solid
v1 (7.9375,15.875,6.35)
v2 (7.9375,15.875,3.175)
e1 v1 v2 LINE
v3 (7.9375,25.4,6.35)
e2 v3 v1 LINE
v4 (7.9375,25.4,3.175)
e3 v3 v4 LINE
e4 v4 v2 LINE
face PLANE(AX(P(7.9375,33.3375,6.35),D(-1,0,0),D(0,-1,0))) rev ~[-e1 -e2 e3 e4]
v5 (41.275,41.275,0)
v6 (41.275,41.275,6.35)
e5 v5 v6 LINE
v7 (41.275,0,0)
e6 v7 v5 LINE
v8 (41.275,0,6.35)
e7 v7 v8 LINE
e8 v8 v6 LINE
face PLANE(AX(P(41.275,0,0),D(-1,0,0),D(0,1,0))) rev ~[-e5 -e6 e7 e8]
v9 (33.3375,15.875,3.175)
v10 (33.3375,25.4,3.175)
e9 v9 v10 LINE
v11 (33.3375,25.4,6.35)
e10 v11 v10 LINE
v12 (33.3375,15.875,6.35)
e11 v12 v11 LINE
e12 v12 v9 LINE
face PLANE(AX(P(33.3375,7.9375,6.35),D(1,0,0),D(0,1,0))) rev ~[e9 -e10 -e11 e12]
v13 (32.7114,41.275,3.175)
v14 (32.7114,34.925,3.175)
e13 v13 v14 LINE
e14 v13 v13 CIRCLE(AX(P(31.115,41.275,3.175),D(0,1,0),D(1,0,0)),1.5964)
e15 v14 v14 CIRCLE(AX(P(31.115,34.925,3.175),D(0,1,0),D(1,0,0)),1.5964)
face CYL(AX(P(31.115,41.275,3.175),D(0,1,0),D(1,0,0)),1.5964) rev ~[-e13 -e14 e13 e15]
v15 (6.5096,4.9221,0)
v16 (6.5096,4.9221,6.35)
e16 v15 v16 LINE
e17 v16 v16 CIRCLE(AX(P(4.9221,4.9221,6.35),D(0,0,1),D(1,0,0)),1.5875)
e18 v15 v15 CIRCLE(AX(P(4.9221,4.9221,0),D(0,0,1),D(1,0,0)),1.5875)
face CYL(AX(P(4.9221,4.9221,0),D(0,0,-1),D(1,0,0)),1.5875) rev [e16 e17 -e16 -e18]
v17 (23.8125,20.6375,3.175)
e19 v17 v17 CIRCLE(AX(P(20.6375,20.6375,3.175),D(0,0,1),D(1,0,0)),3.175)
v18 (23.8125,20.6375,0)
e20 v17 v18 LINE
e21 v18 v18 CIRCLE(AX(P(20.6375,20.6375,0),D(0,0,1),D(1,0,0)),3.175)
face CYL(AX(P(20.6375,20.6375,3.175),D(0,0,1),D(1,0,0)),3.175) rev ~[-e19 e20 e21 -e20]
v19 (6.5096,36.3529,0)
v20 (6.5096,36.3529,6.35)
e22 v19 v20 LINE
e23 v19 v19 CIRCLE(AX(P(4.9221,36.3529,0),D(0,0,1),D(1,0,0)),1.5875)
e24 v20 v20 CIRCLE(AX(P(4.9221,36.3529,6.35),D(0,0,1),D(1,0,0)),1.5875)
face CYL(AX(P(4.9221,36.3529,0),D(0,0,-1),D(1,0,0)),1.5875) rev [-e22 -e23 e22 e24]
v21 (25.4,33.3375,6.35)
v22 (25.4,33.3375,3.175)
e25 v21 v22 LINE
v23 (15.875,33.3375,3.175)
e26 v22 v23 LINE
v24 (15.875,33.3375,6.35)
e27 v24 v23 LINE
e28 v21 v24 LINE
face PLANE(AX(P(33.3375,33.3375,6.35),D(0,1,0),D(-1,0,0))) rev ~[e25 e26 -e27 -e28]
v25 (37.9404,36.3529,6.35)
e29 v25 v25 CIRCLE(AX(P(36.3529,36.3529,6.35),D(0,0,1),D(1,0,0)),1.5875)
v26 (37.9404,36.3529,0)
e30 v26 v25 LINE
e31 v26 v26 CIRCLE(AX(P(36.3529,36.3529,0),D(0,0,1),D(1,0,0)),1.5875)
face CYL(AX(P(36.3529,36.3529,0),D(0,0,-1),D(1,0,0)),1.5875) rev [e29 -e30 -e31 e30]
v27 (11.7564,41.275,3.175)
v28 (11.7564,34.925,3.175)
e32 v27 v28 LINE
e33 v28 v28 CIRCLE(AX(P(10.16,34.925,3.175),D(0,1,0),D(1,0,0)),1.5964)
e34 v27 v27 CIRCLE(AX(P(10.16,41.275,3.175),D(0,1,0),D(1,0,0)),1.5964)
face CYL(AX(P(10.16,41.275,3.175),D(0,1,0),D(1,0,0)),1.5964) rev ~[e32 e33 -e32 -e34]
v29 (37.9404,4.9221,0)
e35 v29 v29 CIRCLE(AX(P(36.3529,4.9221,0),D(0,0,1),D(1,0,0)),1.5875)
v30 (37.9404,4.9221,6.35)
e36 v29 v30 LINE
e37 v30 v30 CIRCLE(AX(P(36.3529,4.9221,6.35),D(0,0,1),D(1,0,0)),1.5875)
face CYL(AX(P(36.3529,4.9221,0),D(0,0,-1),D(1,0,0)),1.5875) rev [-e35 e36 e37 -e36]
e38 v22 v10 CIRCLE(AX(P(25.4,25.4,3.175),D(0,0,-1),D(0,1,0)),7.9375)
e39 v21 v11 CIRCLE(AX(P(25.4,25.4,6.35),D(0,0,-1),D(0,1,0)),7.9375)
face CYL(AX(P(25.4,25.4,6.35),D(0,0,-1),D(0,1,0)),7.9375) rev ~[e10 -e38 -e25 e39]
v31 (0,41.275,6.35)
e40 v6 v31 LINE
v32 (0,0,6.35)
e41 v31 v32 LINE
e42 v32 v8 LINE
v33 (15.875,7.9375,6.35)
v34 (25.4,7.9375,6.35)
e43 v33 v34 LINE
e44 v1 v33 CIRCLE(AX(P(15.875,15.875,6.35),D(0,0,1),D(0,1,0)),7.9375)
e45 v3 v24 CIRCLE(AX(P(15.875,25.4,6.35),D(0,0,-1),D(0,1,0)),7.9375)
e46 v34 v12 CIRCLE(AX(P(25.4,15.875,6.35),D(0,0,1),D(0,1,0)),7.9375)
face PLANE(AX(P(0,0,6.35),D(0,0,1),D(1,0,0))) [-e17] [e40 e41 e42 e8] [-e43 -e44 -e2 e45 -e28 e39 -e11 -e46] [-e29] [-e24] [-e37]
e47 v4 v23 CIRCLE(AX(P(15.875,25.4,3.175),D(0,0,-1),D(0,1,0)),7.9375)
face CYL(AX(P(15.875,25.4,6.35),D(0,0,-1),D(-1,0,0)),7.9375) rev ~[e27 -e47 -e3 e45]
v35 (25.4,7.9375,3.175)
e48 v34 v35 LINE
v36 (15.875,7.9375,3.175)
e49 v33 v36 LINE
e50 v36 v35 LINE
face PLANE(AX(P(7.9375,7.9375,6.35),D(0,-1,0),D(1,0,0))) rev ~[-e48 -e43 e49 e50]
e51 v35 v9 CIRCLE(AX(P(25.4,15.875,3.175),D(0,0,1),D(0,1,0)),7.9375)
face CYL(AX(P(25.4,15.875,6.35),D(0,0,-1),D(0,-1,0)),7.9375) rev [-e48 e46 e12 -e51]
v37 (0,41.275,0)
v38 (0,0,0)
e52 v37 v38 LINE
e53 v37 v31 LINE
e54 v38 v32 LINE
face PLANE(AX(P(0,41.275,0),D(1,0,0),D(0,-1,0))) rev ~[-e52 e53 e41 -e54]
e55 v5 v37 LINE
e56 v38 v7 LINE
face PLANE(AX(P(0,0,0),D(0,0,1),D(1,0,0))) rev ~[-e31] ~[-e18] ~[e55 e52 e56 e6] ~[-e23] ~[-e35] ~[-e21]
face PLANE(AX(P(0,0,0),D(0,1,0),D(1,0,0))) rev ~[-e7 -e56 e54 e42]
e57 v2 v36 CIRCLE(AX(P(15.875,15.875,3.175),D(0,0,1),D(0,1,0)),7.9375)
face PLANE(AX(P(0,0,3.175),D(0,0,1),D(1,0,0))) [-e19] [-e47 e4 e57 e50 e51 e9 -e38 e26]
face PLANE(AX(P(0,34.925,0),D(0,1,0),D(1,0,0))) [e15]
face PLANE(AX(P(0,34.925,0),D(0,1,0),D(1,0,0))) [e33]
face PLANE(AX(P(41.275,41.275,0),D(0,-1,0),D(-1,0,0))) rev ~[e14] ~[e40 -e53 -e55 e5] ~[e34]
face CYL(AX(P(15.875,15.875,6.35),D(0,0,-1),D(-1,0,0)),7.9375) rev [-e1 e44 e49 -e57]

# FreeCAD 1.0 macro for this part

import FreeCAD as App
import Part
import Sketcher

V = App.Vector
Q = App.Units.Quantity


def edges_at(feature, points):
    """Names of the edges that pass closest to the given points."""
    edges = feature.Shape.Edges
    near = lambda p: min(range(len(edges)), key=lambda i: edges[i].distToShape(Part.Vertex(*p))[0])
    return sorted({f"Edge{near(p) + 1}" for p in points})

doc = App.newDocument("Part")
body = doc.addObject("PartDesign::Body", "Body")

sketch1 = body.newObject("Sketcher::SketchObject", "Sketch")
sketch1.AttachmentSupport = (doc.getObject("XY_Plane"), [""])
sketch1.MapMode = "FlatFace"
sketch1.addGeometry(Part.LineSegment(V(0, 41.3, 0), V(0, 0, 0)), False)
sketch1.addGeometry(Part.LineSegment(V(0, 0, 0), V(41.3, 0, 0)), False)
sketch1.addGeometry(Part.LineSegment(V(41.3, 0, 0), V(41.3, 41.3, 0)), False)
sketch1.addGeometry(Part.LineSegment(V(41.3, 41.3, 0), V(0, 41.3, 0)), False)
sketch1.addGeometry(Part.Circle(V(4.9, 4.9, 0), V(0, 0, 1), 1.6), False)
sketch1.addGeometry(Part.Circle(V(36.4, 4.9, 0), V(0, 0, 1), 1.6), False)
sketch1.addGeometry(Part.Circle(V(4.9, 36.4, 0), V(0, 0, 1), 1.6), False)
sketch1.addGeometry(Part.Circle(V(36.4, 36.4, 0), V(0, 0, 1), 1.6), False)
sketch1.addConstraint(Sketcher.Constraint("Coincident", 0, 2, 1, 1))
sketch1.addConstraint(Sketcher.Constraint("Coincident", 1, 2, 2, 1))
sketch1.addConstraint(Sketcher.Constraint("Coincident", 2, 2, 3, 1))
sketch1.addConstraint(Sketcher.Constraint("Coincident", 3, 2, 0, 1))
sketch1.addConstraint(Sketcher.Constraint("Vertical", 0))
sketch1.addConstraint(Sketcher.Constraint("Horizontal", 1))
sketch1.addConstraint(Sketcher.Constraint("Vertical", 2))
sketch1.addConstraint(Sketcher.Constraint("Horizontal", 3))
sketch1.addConstraint(Sketcher.Constraint("Coincident", 0, 2, -1, 1))
sketch1.addConstraint(Sketcher.Constraint("Equal", 4, 5))
sketch1.addConstraint(Sketcher.Constraint("Equal", 5, 6))
sketch1.addConstraint(Sketcher.Constraint("Equal", 6, 7))
sketch1.addConstraint(Sketcher.Constraint("Horizontal", 4, 3, 5, 3))
sketch1.addConstraint(Sketcher.Constraint("Horizontal", 6, 3, 7, 3))
sketch1.addConstraint(Sketcher.Constraint("Vertical", 4, 3, 6, 3))
sketch1.addConstraint(Sketcher.Constraint("Vertical", 5, 3, 7, 3))
sketch1.addConstraint(Sketcher.Constraint("Equal", 3, 0))
sketch1.addConstraint(Sketcher.Constraint("Diameter", 4, Q("0.125 in")))
sketch1.addConstraint(Sketcher.Constraint("DistanceX", 1, 1, 1, 2, Q("1.625 in")))
sketch1.addConstraint(Sketcher.Constraint("DistanceX", -1, 1, 4, 3, 4.922))
sketch1.addConstraint(Sketcher.Constraint("DistanceY", -1, 1, 4, 3, 4.922))
sketch1.addConstraint(Sketcher.Constraint("DistanceX", -1, 1, 5, 3, 36.353))
sketch1.addConstraint(Sketcher.Constraint("DistanceY", -1, 1, 6, 3, 36.353))
pad1 = body.newObject("PartDesign::Pad", "Pad")
pad1.Profile = sketch1
pad1.Length = Q("0.25 in")

sketch2 = body.newObject("Sketcher::SketchObject", "Sketch001")
sketch2.AttachmentSupport = (doc.getObject("XZ_Plane"), [""])
sketch2.MapMode = "FlatFace"
sketch2.AttachmentOffset = App.Placement(V(0, 0, -1.625 * 25.4), App.Rotation())
sketch2.addGeometry(Part.Circle(V(10.2, 3.2, 0), V(0, 0, 1), 1.6), False)
sketch2.addGeometry(Part.Circle(V(31.1, 3.2, 0), V(0, 0, 1), 1.6), False)
sketch2.addConstraint(Sketcher.Constraint("Equal", 0, 1))
sketch2.addConstraint(Sketcher.Constraint("Horizontal", 0, 3, 1, 3))
sketch2.addConstraint(Sketcher.Constraint("Diameter", 0, Q("0.1257 in")))
sketch2.addConstraint(Sketcher.Constraint("DistanceX", -1, 1, 0, 3, Q("0.4 in")))
sketch2.addConstraint(Sketcher.Constraint("DistanceY", -1, 1, 0, 3, Q("0.125 in")))
sketch2.addConstraint(Sketcher.Constraint("DistanceX", -1, 1, 1, 3, Q("1.225 in")))
pocket1 = body.newObject("PartDesign::Pocket", "Pocket")
pocket1.Profile = sketch2
pocket1.Length = Q("0.25 in")
pocket1.Reversed = True

sketch3 = body.newObject("Sketcher::SketchObject", "Sketch002")
sketch3.AttachmentSupport = (doc.getObject("XY_Plane"), [""])
sketch3.MapMode = "FlatFace"
sketch3.AttachmentOffset = App.Placement(V(0, 0, 0.25 * 25.4), App.Rotation())
sketch3.addGeometry(Part.LineSegment(V(8, 33, 0), V(8, 8, 0)), False)
sketch3.addGeometry(Part.LineSegment(V(8, 8, 0), V(33, 8, 0)), False)
sketch3.addGeometry(Part.LineSegment(V(33, 8, 0), V(33, 33, 0)), False)
sketch3.addGeometry(Part.LineSegment(V(33, 33, 0), V(8, 33, 0)), False)
sketch3.addConstraint(Sketcher.Constraint("Coincident", 0, 2, 1, 1))
sketch3.addConstraint(Sketcher.Constraint("Coincident", 1, 2, 2, 1))
sketch3.addConstraint(Sketcher.Constraint("Coincident", 2, 2, 3, 1))
sketch3.addConstraint(Sketcher.Constraint("Coincident", 3, 2, 0, 1))
sketch3.addConstraint(Sketcher.Constraint("Vertical", 0))
sketch3.addConstraint(Sketcher.Constraint("Horizontal", 1))
sketch3.addConstraint(Sketcher.Constraint("Vertical", 2))
sketch3.addConstraint(Sketcher.Constraint("Horizontal", 3))
sketch3.addConstraint(Sketcher.Constraint("Equal", 3, 0))
sketch3.addConstraint(Sketcher.Constraint("DistanceX", 1, 1, 1, 2, Q("1 in")))
sketch3.addConstraint(Sketcher.Constraint("DistanceX", -1, 1, 0, 2, Q("0.3125 in")))
sketch3.addConstraint(Sketcher.Constraint("DistanceY", -1, 1, 0, 2, Q("0.3125 in")))
pocket2 = body.newObject("PartDesign::Pocket", "Pocket001")
pocket2.Profile = sketch3
pocket2.Length = Q("0.125 in")
doc.recompute()

fillet = body.newObject("PartDesign::Fillet", "Fillet")
fillet.Base = (pocket2, edges_at(pocket2, [(7.938, 33.337, 4.763)]))
fillet.Radius = Q("0.3125 in")
doc.recompute()

fillet2 = body.newObject("PartDesign::Fillet", "Fillet001")
fillet2.Base = (fillet, edges_at(fillet, [(7.938, 7.938, 4.763), (33.337, 7.938, 4.763), (33.337, 33.337, 4.763)]))
fillet2.Radius = Q("0.3125 in")

sketch4 = body.newObject("Sketcher::SketchObject", "Sketch003")
sketch4.AttachmentSupport = (doc.getObject("XY_Plane"), [""])
sketch4.MapMode = "FlatFace"
sketch4.AttachmentOffset = App.Placement(V(0, 0, 0.125 * 25.4), App.Rotation())
sketch4.addGeometry(Part.Circle(V(20.6, 20.6, 0), V(0, 0, 1), 3.2), False)
sketch4.addConstraint(Sketcher.Constraint("Diameter", 0, Q("0.25 in")))
sketch4.addConstraint(Sketcher.Constraint("DistanceX", -1, 1, 0, 3, Q("0.8125 in")))
sketch4.addConstraint(Sketcher.Constraint("DistanceY", -1, 1, 0, 3, Q("0.8125 in")))
pocket3 = body.newObject("PartDesign::Pocket", "Pocket002")
pocket3.Profile = sketch4
pocket3.Length = Q("1 in")

doc.recompute()
